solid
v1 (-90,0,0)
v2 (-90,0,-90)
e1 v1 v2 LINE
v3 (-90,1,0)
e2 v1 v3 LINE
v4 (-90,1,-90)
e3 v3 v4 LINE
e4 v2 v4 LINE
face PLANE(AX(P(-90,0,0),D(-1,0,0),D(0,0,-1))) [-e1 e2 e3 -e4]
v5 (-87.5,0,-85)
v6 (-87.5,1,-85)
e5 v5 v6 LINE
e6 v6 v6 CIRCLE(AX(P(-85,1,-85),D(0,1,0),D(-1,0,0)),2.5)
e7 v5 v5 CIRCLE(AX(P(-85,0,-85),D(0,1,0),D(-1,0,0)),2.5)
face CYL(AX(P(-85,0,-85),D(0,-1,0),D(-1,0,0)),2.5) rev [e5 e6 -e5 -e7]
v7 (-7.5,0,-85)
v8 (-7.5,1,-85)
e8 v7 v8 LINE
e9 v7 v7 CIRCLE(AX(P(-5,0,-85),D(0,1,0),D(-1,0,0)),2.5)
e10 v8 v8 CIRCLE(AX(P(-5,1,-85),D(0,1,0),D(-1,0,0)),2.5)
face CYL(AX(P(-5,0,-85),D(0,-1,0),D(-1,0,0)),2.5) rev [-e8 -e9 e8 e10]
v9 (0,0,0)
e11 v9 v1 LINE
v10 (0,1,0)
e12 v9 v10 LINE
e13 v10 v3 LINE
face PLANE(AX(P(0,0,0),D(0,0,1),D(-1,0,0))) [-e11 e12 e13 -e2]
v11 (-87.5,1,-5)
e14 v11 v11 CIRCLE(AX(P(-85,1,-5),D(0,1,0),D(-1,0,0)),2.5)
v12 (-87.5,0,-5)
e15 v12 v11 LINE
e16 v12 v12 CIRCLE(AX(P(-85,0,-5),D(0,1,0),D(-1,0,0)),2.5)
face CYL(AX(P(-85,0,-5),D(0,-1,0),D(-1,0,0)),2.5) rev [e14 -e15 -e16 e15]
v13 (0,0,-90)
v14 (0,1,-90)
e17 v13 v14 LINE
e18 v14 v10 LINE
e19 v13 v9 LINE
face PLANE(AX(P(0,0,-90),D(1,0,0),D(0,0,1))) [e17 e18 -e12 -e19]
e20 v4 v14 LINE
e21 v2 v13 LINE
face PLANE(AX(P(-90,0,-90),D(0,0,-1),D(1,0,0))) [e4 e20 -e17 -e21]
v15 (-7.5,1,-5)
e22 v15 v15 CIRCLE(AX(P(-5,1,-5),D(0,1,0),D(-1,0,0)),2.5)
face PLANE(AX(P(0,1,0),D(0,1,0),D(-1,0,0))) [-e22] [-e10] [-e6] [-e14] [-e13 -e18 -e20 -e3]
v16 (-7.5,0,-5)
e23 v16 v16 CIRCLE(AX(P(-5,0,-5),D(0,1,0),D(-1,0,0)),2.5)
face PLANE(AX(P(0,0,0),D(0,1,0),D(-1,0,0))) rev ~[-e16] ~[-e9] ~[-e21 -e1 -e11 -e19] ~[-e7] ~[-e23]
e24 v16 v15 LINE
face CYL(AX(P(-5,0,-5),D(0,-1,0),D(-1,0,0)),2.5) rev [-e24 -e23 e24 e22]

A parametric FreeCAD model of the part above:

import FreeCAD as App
import Part
import Sketcher
from FreeCAD import Vector


def add_polygon(sketch, points):
    """Adds a closed chain of lines whose ends are joined by coincident constraints."""
    first, n = sketch.GeometryCount, len(points)
    for a, b in zip(points, points[1:] + points[:1]):
        sketch.addGeometry(Part.LineSegment(App.Vector(*a, 0), App.Vector(*b, 0)), False)
    for i in range(n):
        sketch.addConstraint(Sketcher.Constraint("Coincident", first + i, 2, first + (i + 1) % n, 1))

doc = App.newDocument("Part")
body = doc.addObject("PartDesign::Body", "Body")

# Sketch on XZ plane
sketch1 = body.newObject("Sketcher::SketchObject", "Sketch")
sketch1.AttachmentSupport = (doc.getObject("XZ_Plane"), [""])
sketch1.MapMode = "FlatFace"
add_polygon(sketch1, [(-90, 0), (0, 0), (0, -90), (-90, -90)])  # lines 0-3
sketch1.addGeometry(Part.Circle(Vector(-5, -85, 0), Vector(0, 0, 1), 2.5), False)  # 4
sketch1.addGeometry(Part.Circle(Vector(-85, -85, 0), Vector(0, 0, 1), 2.5), False)  # 5
sketch1.addGeometry(Part.Circle(Vector(-5, -5, 0), Vector(0, 0, 1), 2.5), False)  # 6
sketch1.addGeometry(Part.Circle(Vector(-85, -5, 0), Vector(0, 0, 1), 2.5), False)  # 7
sketch1.addConstraint(Sketcher.Constraint("Horizontal", 0))
sketch1.addConstraint(Sketcher.Constraint("Vertical", 1))
sketch1.addConstraint(Sketcher.Constraint("Horizontal", 2))
sketch1.addConstraint(Sketcher.Constraint("Vertical", 3))
sketch1.addConstraint(Sketcher.Constraint("Coincident", 0, 2, -1, 1))
sketch1.addConstraint(Sketcher.Constraint("Equal", 4, 5))
sketch1.addConstraint(Sketcher.Constraint("Equal", 5, 6))
sketch1.addConstraint(Sketcher.Constraint("Equal", 6, 7))
sketch1.addConstraint(Sketcher.Constraint("Horizontal", 4, 3, 5, 3))
sketch1.addConstraint(Sketcher.Constraint("Horizontal", 6, 3, 7, 3))
sketch1.addConstraint(Sketcher.Constraint("Vertical", 4, 3, 6, 3))
sketch1.addConstraint(Sketcher.Constraint("Vertical", 5, 3, 7, 3))
sketch1.addConstraint(Sketcher.Constraint("Equal", 2, 1))
sketch1.addConstraint(Sketcher.Constraint("Diameter", 4, 5.0))
sketch1.addConstraint(Sketcher.Constraint("DistanceX", 0, 1, 0, 2, 90.0))
sketch1.addConstraint(Sketcher.Constraint("DistanceX", 4, 3, -1, 1, 5.0))
sketch1.addConstraint(Sketcher.Constraint("DistanceY", 6, 3, -1, 1, 5.0))
sketch1.addConstraint(Sketcher.Constraint("DistanceX", 5, 3, 4, 3, 80.0))
sketch1.addConstraint(Sketcher.Constraint("DistanceY", 4, 3, 6, 3, 80.0))
pad1 = body.newObject("PartDesign::Pad", "Pad")
pad1.Profile = sketch1
pad1.Length = 1
pad1.Reversed = True

doc.recompute()
